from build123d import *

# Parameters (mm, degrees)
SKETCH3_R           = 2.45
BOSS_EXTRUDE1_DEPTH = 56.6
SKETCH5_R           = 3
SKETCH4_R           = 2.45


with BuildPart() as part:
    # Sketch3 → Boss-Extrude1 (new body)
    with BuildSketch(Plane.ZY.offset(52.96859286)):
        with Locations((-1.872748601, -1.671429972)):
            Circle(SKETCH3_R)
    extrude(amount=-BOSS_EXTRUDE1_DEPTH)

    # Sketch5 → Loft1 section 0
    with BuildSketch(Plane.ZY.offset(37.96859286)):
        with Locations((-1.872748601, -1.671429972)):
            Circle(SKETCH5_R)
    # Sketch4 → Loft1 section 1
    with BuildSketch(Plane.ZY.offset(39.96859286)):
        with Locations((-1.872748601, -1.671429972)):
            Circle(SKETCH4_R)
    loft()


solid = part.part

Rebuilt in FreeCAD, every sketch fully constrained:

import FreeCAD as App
import Part
import Sketcher
from FreeCAD import Vector
Q = App.Units.Quantity

doc = App.newDocument("Part")
body = doc.addObject("PartDesign::Body", "Body")

sketch1 = doc.addObject("Sketcher::SketchObject", "Sketch")
body.addObject(sketch1)
sketch1.AttachmentSupport = (doc.YZ_Plane, [""])
sketch1.MapMode = "FlatFace"
sketch1.AttachmentOffset = App.Placement(Vector(0, 0, -52.968593), App.Rotation())
sketch1.addGeometry(Part.Circle(Vector(-1.7, -1.9, 0), Vector(0, 0, 1), 2.5), False)
sketch1.addConstraint([
    Sketcher.Constraint("Diameter", 0, Q("4.9 mm")),
    Sketcher.Constraint("DistanceX", 0, 3, -1, 1, Q("1.67143 mm")),
    Sketcher.Constraint("DistanceY", 0, 3, -1, 1, Q("1.872749 mm")),
])
pad1 = doc.addObject("PartDesign::Pad", "Pad")
body.addObject(pad1)
pad1.Profile = sketch1
pad1.Length = 56.6

sketch2 = doc.addObject("Sketcher::SketchObject", "Sketch001")
body.addObject(sketch2)
sketch2.AttachmentSupport = (doc.YZ_Plane, [""])
sketch2.MapMode = "FlatFace"
sketch2.AttachmentOffset = App.Placement(Vector(0, 0, -37.968593), App.Rotation())
sketch2.addGeometry(Part.Circle(Vector(-1.7, -1.9, 0), Vector(0, 0, 1), 3), False)
sketch2.addConstraint([
    Sketcher.Constraint("Diameter", 0, Q("6 mm")),
    Sketcher.Constraint("DistanceX", 0, 3, -1, 1, Q("1.67143 mm")),
    Sketcher.Constraint("DistanceY", 0, 3, -1, 1, Q("1.872749 mm")),
])

sketch3 = doc.addObject("Sketcher::SketchObject", "Sketch002")
body.addObject(sketch3)
sketch3.AttachmentSupport = (doc.YZ_Plane, [""])
sketch3.MapMode = "FlatFace"
sketch3.AttachmentOffset = App.Placement(Vector(0, 0, -39.968593), App.Rotation())
sketch3.addGeometry(Part.Circle(Vector(-1.7, -1.9, 0), Vector(0, 0, 1), 2.5), False)
sketch3.addConstraint([
    Sketcher.Constraint("Diameter", 0, Q("4.9 mm")),
    Sketcher.Constraint("DistanceX", 0, 3, -1, 1, Q("1.67143 mm")),
    Sketcher.Constraint("DistanceY", 0, 3, -1, 1, Q("1.872749 mm")),
])

additiveloft = doc.addObject("PartDesign::AdditiveLoft", "AdditiveLoft")
body.addObject(additiveloft)
additiveloft.Profile = sketch2
additiveloft.Sections = [sketch3]

doc.recompute()
